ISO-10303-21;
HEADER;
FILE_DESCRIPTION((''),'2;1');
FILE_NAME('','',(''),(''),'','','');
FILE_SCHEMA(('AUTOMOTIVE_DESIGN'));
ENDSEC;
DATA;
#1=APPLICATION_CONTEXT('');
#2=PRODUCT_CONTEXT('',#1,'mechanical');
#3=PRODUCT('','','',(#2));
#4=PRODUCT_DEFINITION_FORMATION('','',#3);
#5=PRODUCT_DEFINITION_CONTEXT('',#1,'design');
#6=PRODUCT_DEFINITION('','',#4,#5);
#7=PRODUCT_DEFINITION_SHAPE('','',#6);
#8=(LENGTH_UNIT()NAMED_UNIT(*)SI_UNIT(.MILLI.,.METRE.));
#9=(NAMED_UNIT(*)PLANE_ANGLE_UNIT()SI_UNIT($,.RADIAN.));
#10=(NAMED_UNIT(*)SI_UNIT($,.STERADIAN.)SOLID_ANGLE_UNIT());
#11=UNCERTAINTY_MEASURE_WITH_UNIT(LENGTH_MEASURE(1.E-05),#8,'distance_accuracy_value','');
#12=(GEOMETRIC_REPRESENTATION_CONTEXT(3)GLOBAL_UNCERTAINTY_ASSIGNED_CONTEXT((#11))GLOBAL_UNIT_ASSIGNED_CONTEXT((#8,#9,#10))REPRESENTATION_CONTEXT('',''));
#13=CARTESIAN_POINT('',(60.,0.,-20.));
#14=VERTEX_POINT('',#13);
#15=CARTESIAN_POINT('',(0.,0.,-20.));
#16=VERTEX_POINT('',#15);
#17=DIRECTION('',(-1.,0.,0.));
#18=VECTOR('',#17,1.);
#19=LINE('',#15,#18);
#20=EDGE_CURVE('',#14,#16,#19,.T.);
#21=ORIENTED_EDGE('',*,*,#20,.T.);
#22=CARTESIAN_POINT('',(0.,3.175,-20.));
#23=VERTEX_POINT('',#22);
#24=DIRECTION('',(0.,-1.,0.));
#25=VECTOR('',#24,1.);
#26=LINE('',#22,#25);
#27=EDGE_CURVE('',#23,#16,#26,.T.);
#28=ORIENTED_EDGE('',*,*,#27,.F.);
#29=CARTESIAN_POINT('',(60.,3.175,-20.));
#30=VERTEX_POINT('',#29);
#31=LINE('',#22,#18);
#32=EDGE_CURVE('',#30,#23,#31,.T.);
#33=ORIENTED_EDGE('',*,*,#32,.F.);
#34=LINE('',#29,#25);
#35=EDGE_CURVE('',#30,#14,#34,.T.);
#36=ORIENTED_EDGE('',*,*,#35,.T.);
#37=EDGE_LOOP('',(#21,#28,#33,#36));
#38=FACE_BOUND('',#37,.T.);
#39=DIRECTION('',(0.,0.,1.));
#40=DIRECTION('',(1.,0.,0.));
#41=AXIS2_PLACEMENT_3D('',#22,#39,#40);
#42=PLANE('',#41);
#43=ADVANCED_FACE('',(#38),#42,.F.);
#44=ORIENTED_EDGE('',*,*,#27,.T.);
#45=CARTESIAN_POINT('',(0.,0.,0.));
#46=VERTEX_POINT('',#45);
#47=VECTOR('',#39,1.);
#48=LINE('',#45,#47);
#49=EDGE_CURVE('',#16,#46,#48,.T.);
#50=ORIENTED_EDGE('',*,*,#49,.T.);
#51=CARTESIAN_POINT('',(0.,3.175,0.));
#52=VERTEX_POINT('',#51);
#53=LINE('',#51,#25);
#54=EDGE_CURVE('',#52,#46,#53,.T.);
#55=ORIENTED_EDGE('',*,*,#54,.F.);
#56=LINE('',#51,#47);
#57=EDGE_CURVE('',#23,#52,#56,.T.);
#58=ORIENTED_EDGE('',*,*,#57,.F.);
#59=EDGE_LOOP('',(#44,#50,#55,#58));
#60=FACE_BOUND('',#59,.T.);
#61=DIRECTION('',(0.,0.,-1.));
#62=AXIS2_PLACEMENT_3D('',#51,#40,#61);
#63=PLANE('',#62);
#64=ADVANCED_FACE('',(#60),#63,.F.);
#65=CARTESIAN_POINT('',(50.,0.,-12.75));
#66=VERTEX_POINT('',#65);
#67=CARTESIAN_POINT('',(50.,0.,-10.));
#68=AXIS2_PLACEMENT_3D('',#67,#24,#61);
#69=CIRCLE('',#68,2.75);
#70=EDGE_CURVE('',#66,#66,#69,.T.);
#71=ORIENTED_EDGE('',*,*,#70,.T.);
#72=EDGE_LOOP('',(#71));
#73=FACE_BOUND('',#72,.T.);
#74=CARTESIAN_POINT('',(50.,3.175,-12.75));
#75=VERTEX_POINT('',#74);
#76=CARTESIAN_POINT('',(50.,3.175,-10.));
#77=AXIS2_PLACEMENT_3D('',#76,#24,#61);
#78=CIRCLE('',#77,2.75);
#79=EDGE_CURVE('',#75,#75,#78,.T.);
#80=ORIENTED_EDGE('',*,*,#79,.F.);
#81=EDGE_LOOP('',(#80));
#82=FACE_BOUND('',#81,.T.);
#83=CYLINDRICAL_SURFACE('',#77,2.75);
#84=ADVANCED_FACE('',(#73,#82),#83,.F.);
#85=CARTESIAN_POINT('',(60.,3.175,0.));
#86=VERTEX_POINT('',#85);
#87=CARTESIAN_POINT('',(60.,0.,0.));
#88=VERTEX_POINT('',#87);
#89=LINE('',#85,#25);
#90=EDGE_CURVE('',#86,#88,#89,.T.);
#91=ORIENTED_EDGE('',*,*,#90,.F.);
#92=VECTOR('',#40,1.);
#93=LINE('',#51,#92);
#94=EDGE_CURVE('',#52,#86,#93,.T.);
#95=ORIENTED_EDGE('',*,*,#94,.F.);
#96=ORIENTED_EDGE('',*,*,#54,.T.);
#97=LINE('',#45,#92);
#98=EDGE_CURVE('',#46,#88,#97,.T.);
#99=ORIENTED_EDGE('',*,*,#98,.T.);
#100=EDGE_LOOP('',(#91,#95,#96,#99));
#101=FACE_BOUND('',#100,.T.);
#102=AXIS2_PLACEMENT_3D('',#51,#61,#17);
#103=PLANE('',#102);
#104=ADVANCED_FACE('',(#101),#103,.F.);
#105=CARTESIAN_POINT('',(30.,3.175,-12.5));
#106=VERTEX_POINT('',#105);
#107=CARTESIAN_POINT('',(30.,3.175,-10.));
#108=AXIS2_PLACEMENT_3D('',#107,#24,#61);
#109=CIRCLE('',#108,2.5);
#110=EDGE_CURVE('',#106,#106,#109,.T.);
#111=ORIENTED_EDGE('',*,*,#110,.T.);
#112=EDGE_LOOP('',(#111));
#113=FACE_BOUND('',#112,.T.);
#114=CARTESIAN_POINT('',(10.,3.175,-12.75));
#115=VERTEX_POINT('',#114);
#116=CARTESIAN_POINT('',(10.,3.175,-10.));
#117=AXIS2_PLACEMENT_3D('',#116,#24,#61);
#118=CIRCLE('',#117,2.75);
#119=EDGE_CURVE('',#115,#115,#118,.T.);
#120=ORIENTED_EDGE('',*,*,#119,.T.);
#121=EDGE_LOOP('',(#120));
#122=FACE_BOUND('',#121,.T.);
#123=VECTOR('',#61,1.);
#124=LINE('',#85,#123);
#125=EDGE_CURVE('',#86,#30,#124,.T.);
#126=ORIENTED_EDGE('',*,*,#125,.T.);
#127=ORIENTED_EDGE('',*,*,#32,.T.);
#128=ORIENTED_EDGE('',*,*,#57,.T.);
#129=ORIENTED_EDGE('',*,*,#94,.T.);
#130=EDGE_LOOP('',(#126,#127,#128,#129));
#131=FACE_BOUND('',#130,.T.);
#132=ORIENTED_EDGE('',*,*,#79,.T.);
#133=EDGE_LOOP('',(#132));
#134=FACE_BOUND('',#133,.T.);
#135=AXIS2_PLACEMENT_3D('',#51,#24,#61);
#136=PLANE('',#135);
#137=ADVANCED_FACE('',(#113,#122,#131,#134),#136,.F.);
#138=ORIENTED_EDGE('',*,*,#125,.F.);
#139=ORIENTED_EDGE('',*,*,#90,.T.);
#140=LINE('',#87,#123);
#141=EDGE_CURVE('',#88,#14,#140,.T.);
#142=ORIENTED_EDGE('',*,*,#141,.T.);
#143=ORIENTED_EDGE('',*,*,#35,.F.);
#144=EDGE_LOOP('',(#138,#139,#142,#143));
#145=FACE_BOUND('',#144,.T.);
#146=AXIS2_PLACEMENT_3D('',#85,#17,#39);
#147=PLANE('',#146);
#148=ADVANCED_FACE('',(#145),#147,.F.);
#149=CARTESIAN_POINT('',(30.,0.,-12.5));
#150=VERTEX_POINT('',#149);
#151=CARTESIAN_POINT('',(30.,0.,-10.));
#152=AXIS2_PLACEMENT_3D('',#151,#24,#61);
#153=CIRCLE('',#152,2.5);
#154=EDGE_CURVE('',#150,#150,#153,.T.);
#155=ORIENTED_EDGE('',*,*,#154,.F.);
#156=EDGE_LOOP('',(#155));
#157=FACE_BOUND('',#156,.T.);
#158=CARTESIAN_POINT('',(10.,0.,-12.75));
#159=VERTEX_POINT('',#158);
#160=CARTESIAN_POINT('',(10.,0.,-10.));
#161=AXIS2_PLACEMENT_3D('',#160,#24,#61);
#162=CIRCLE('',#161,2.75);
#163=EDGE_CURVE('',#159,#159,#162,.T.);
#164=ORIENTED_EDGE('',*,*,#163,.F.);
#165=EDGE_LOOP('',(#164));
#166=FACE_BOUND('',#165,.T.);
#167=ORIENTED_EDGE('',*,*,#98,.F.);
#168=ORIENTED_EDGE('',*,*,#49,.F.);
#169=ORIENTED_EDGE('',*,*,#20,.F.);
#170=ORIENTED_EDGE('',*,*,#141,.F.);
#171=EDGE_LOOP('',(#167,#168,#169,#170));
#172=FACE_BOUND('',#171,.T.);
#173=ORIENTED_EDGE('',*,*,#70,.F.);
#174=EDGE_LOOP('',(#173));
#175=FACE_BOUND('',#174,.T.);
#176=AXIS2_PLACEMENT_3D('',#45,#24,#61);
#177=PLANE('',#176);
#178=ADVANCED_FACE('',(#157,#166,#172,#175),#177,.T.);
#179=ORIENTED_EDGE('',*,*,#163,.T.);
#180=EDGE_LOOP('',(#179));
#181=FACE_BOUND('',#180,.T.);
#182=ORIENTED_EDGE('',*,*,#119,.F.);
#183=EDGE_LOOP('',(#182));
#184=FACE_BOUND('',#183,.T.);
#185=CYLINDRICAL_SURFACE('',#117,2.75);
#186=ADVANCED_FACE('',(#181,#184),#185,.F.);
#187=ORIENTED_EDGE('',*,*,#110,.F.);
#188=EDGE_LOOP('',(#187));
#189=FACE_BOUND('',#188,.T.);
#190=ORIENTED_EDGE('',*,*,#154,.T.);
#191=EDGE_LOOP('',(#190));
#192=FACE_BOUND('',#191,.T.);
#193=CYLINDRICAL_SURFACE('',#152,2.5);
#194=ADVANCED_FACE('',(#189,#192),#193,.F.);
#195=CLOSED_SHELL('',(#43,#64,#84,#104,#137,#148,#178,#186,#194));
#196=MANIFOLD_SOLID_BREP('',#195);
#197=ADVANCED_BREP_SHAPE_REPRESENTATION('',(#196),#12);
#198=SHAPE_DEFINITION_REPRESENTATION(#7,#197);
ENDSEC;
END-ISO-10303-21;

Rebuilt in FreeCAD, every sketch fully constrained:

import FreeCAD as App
import Part
import Sketcher

V = App.Vector

doc = App.newDocument("Part")
body = doc.addObject("PartDesign::Body", "Body")

sketch1 = body.newObject("Sketcher::SketchObject", "Sketch")
sketch1.AttachmentSupport = (doc.getObject("XZ_Plane"), [""])
sketch1.MapMode = "FlatFace"
sketch1.addGeometry([
    Part.LineSegment(V(0, -20, 0), V(0, 0, 0)),
    Part.LineSegment(V(0, 0, 0), V(60, 0, 0)),
    Part.LineSegment(V(60, 0, 0), V(60, -20, 0)),
    Part.LineSegment(V(60, -20, 0), V(0, -20, 0)),
], False)
sketch1.addConstraint([
    Sketcher.Constraint("Coincident", 0, 2, 1, 1),
    Sketcher.Constraint("Coincident", 1, 2, 2, 1),
    Sketcher.Constraint("Coincident", 2, 2, 3, 1),
    Sketcher.Constraint("Coincident", 3, 2, 0, 1),
    Sketcher.Constraint("Vertical", 0),
    Sketcher.Constraint("Horizontal", 1),
    Sketcher.Constraint("Vertical", 2),
    Sketcher.Constraint("Horizontal", 3),
    Sketcher.Constraint("Coincident", 0, 2, -1, 1),
    Sketcher.Constraint("DistanceX", 1, 1, 1, 2, 60.0),
    Sketcher.Constraint("DistanceY", 0, 1, 0, 2, 20.0),
])
pad1 = body.newObject("PartDesign::Pad", "Pad")
pad1.Profile = sketch1
pad1.Length = 3.175
pad1.Reversed = True

sketch2 = body.newObject("Sketcher::SketchObject", "Sketch001")
sketch2.AttachmentSupport = (doc.getObject("XZ_Plane"), [""])
sketch2.MapMode = "FlatFace"
sketch2.addGeometry([
    Part.Circle(V(50, -10, 0), V(0, 0, 1), 2.8),
    Part.Circle(V(10, -10, 0), V(0, 0, 1), 2.8),
], False)
sketch2.addConstraint([
    Sketcher.Constraint("Equal", 0, 1),
    Sketcher.Constraint("Horizontal", 0, 3, 1, 3),
    Sketcher.Constraint("Diameter", 0, 5.5),
    Sketcher.Constraint("DistanceX", -1, 1, 0, 3, 50.0),
    Sketcher.Constraint("DistanceY", 0, 3, -1, 1, 10.0),
    Sketcher.Constraint("DistanceX", -1, 1, 1, 3, 10.0),
])
pocket1 = body.newObject("PartDesign::Pocket", "Pocket")
pocket1.Profile = sketch2
pocket1.Length = 3.175

sketch3 = body.newObject("Sketcher::SketchObject", "Sketch002")
sketch3.AttachmentSupport = (doc.getObject("XZ_Plane"), [""])
sketch3.MapMode = "FlatFace"
sketch3.addGeometry(Part.Circle(V(30, -10, 0), V(0, 0, 1), 2.5), False)
sketch3.addConstraint([
    Sketcher.Constraint("Diameter", 0, 5.0),
    Sketcher.Constraint("DistanceX", -1, 1, 0, 3, 30.0),
    Sketcher.Constraint("DistanceY", 0, 3, -1, 1, 10.0),
])
doc.recompute()
hole = body.newObject("PartDesign::Hole", "Hole")
hole.Profile = sketch3
hole.ThreadType = "None"
hole.Diameter = 5
hole.DepthType = "ThroughAll"

doc.recompute()
